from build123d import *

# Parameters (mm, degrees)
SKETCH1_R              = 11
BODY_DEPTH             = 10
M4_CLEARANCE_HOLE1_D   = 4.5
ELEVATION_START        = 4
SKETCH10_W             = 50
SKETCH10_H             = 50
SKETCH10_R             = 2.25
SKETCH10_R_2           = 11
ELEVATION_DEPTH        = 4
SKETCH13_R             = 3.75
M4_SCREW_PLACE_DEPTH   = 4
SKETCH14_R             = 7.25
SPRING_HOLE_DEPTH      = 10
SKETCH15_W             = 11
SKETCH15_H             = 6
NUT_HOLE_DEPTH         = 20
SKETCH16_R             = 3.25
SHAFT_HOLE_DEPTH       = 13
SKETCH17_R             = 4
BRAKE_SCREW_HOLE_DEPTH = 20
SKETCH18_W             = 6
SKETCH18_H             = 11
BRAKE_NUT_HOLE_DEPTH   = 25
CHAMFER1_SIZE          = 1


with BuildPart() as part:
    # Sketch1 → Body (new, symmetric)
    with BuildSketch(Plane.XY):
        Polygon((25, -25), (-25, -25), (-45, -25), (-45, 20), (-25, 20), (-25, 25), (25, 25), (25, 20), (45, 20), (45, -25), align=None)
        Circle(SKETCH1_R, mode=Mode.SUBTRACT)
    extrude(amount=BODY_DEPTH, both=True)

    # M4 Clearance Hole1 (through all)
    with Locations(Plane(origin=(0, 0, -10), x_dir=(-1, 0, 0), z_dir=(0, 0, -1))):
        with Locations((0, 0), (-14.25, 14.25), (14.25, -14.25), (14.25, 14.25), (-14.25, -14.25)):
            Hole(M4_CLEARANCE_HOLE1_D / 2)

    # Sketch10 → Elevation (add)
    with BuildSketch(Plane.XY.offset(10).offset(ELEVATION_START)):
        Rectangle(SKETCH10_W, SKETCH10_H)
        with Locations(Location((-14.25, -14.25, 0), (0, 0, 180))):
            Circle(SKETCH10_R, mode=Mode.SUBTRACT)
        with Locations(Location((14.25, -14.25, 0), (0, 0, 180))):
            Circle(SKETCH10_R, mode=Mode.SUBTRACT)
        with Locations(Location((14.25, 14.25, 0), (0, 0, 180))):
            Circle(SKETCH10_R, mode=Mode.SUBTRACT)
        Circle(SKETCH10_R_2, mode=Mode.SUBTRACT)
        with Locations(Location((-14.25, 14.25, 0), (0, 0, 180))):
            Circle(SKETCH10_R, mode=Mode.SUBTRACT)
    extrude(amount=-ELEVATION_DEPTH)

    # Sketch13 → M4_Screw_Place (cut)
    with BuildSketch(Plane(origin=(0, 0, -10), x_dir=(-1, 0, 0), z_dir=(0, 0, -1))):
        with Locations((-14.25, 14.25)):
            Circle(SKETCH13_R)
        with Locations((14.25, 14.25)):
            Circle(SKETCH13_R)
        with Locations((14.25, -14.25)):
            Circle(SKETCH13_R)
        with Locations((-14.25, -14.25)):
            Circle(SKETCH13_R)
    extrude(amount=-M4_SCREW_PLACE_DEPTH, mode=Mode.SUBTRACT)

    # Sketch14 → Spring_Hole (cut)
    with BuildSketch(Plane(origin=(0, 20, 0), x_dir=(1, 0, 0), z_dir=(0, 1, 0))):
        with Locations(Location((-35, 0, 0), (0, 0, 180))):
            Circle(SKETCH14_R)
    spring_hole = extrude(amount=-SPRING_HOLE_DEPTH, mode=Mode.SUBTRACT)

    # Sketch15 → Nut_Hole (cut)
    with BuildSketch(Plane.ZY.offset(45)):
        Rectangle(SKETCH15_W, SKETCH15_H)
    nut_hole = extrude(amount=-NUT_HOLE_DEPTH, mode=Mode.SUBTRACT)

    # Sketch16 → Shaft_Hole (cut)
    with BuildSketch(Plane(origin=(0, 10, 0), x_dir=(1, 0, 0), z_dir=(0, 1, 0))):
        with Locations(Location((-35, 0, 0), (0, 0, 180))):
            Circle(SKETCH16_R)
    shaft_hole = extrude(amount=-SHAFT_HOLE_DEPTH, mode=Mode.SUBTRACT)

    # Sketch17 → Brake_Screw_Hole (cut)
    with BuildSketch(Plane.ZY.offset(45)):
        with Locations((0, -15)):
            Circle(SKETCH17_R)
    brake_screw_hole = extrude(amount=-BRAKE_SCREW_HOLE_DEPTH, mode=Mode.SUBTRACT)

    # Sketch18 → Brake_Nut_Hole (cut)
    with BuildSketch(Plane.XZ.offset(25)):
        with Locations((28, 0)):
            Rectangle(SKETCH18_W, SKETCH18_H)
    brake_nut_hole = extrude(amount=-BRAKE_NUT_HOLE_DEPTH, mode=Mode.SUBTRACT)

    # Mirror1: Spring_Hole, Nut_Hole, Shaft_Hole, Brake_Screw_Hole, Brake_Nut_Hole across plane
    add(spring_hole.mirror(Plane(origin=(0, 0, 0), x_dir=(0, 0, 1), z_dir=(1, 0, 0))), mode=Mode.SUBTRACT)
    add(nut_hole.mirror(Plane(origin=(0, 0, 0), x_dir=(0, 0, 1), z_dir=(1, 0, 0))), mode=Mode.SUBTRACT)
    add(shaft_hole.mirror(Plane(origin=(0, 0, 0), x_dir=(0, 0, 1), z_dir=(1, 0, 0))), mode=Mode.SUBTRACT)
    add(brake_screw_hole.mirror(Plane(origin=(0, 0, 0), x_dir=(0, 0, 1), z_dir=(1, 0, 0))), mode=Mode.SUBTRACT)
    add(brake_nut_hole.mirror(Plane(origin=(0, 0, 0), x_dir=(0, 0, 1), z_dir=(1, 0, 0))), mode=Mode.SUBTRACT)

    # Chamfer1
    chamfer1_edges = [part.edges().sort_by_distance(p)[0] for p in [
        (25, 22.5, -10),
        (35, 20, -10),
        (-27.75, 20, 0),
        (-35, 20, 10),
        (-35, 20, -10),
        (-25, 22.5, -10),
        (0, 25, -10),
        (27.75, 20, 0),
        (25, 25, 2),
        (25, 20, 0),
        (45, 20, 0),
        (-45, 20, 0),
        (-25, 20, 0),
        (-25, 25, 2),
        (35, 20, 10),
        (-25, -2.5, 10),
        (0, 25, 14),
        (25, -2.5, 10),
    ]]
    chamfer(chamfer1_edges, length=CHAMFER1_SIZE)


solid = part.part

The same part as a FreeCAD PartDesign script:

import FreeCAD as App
import Part
import Sketcher
from FreeCAD import Vector


def edges_at(feature, points):
    """Names of the edges that pass closest to the given points."""
    edges = feature.Shape.Edges
    near = lambda p: min(range(len(edges)), key=lambda i: edges[i].distToShape(Part.Vertex(*p))[0])
    return sorted({f"Edge{near(p) + 1}" for p in points})


def add_polygon(sketch, points):
    """Adds a closed chain of lines whose ends are joined by coincident constraints."""
    first, n = sketch.GeometryCount, len(points)
    for a, b in zip(points, points[1:] + points[:1]):
        sketch.addGeometry(Part.LineSegment(App.Vector(*a, 0), App.Vector(*b, 0)), False)
    for i in range(n):
        sketch.addConstraint(Sketcher.Constraint("Coincident", first + i, 2, first + (i + 1) % n, 1))

doc = App.newDocument("Part")
body = doc.addObject("PartDesign::Body", "Body")

# Sketch on XY plane
sketch1 = body.newObject("Sketcher::SketchObject", "Sketch")
sketch1.AttachmentSupport = (doc.getObject("XY_Plane"), [""])
sketch1.MapMode = "FlatFace"
add_polygon(sketch1, [(-45, -25), (45, -25), (45, 20), (25, 20), (25, 25), (-25, 25), (-25, 20), (-45, 20)])  # lines 0-7
sketch1.addGeometry(Part.Circle(Vector(0, 0, 0), Vector(0, 0, 1), 11), False)  # 8
sketch1.addConstraint(Sketcher.Constraint("Horizontal", 0))
sketch1.addConstraint(Sketcher.Constraint("Vertical", 1))
sketch1.addConstraint(Sketcher.Constraint("Horizontal", 2))
sketch1.addConstraint(Sketcher.Constraint("Vertical", 3))
sketch1.addConstraint(Sketcher.Constraint("Horizontal", 4))
sketch1.addConstraint(Sketcher.Constraint("Vertical", 5))
sketch1.addConstraint(Sketcher.Constraint("Horizontal", 6))
sketch1.addConstraint(Sketcher.Constraint("Vertical", 7))
sketch1.addConstraint(Sketcher.Constraint("Coincident", 8, 3, -1, 1))
sketch1.addConstraint(Sketcher.Constraint("Symmetric", 2, 2, 5, 2, -2))
sketch1.addConstraint(Sketcher.Constraint("Equal", 2, 6))
sketch1.addConstraint(Sketcher.Constraint("Diameter", 8, 22.0))
sketch1.addConstraint(Sketcher.Constraint("DistanceX", 0, 1, 0, 2, 90.0))
sketch1.addConstraint(Sketcher.Constraint("DistanceX", 2, 2, 2, 1, 20.0))
sketch1.addConstraint(Sketcher.Constraint("DistanceY", 1, 1, 1, 2, 45.0))
sketch1.addConstraint(Sketcher.Constraint("DistanceY", 3, 1, 3, 2, 5.0))
sketch1.addConstraint(Sketcher.Constraint("DistanceY", 0, 2, -1, 1, 25.0))
pad1 = body.newObject("PartDesign::Pad", "Pad")
pad1.Profile = sketch1
pad1.Length = 20
pad1.Midplane = True

# Sketch on XY plane
sketch2 = body.newObject("Sketcher::SketchObject", "Sketch001")
sketch2.AttachmentSupport = (doc.getObject("XY_Plane"), [""])
sketch2.MapMode = "FlatFace"
sketch2.AttachmentOffset = App.Placement(Vector(0, 0, -10), App.Rotation())
sketch2.addGeometry(Part.Circle(Vector(0, 0, 0), Vector(0, 0, 1), 2.25), False)
sketch2.addGeometry(Part.Circle(Vector(14.25, 14.25, 0), Vector(0, 0, 1), 2.25), False)
sketch2.addGeometry(Part.Circle(Vector(-14.25, -14.25, 0), Vector(0, 0, 1), 2.25), False)
sketch2.addGeometry(Part.Circle(Vector(-14.25, 14.25, 0), Vector(0, 0, 1), 2.25), False)
sketch2.addGeometry(Part.Circle(Vector(14.25, -14.25, 0), Vector(0, 0, 1), 2.25), False)
sketch2.addConstraint(Sketcher.Constraint("Coincident", 0, 3, -1, 1))
sketch2.addConstraint(Sketcher.Constraint("Equal", 0, 1))
sketch2.addConstraint(Sketcher.Constraint("Equal", 1, 2))
sketch2.addConstraint(Sketcher.Constraint("Equal", 2, 3))
sketch2.addConstraint(Sketcher.Constraint("Equal", 3, 4))
sketch2.addConstraint(Sketcher.Constraint("Symmetric", 1, 3, 2, 3, -1, 1))
sketch2.addConstraint(Sketcher.Constraint("Symmetric", 3, 3, 4, 3, -1, 1))
sketch2.addConstraint(Sketcher.Constraint("Symmetric", 1, 3, 3, 3, -2))
sketch2.addConstraint(Sketcher.Constraint("Diameter", 0, 4.5))
sketch2.addConstraint(Sketcher.Constraint("DistanceX", 2, 3, 1, 3, 28.5))
sketch2.addConstraint(Sketcher.Constraint("DistanceY", 2, 3, 1, 3, 28.5))
doc.recompute()
hole = body.newObject("PartDesign::Hole", "Hole")
hole.Profile = sketch2
hole.ThreadType = "None"
hole.Diameter = 4.5
hole.DepthType = "ThroughAll"
hole.Reversed = True

# Sketch on XY plane
sketch3 = body.newObject("Sketcher::SketchObject", "Sketch002")
sketch3.AttachmentSupport = (doc.getObject("XY_Plane"), [""])
sketch3.MapMode = "FlatFace"
sketch3.AttachmentOffset = App.Placement(Vector(0, 0, 14), App.Rotation())
add_polygon(sketch3, [(-25, 25), (-25, -25), (25, -25), (25, 25)])  # lines 0-3
sketch3.addGeometry(Part.Circle(Vector(-14.25, -14.25, 0), Vector(0, 0, 1), 2.25), False)  # 4
sketch3.addGeometry(Part.Circle(Vector(14.25, -14.25, 0), Vector(0, 0, 1), 2.25), False)  # 5
sketch3.addGeometry(Part.Circle(Vector(-14.25, 14.25, 0), Vector(0, 0, 1), 2.25), False)  # 6
sketch3.addGeometry(Part.Circle(Vector(0, 0, 0), Vector(0, 0, 1), 11), False)  # 7
sketch3.addGeometry(Part.Circle(Vector(14.25, 14.25, 0), Vector(0, 0, 1), 2.25), False)  # 8
sketch3.addConstraint(Sketcher.Constraint("Vertical", 0))
sketch3.addConstraint(Sketcher.Constraint("Horizontal", 1))
sketch3.addConstraint(Sketcher.Constraint("Vertical", 2))
sketch3.addConstraint(Sketcher.Constraint("Horizontal", 3))
sketch3.addConstraint(Sketcher.Constraint("Coincident", 7, 3, -1, 1))
sketch3.addConstraint(Sketcher.Constraint("Equal", 4, 5))
sketch3.addConstraint(Sketcher.Constraint("Equal", 5, 6))
sketch3.addConstraint(Sketcher.Constraint("Equal", 6, 8))
sketch3.addConstraint(Sketcher.Constraint("Symmetric", 5, 3, 6, 3, -1, 1))
sketch3.addConstraint(Sketcher.Constraint("Symmetric", 4, 3, 8, 3, -1, 1))
sketch3.addConstraint(Sketcher.Constraint("Symmetric", 0, 2, 2, 2, -1, 1))
sketch3.addConstraint(Sketcher.Constraint("Symmetric", 4, 3, 5, 3, -2))
sketch3.addConstraint(Sketcher.Constraint("Equal", 3, 0))
sketch3.addConstraint(Sketcher.Constraint("Diameter", 7, 22.0))
sketch3.addConstraint(Sketcher.Constraint("Diameter", 4, 4.5))
sketch3.addConstraint(Sketcher.Constraint("DistanceX", 1, 1, 1, 2, 50.0))
sketch3.addConstraint(Sketcher.Constraint("DistanceX", 4, 3, 5, 3, 28.5))
sketch3.addConstraint(Sketcher.Constraint("DistanceY", 4, 3, 6, 3, 28.5))
pad2 = body.newObject("PartDesign::Pad", "Pad001")
pad2.Profile = sketch3
pad2.Length = 4
pad2.Reversed = True

# Sketch on XY plane
sketch4 = body.newObject("Sketcher::SketchObject", "Sketch003")
sketch4.AttachmentSupport = (doc.getObject("XY_Plane"), [""])
sketch4.MapMode = "FlatFace"
sketch4.AttachmentOffset = App.Placement(Vector(0, 0, -10), App.Rotation())
sketch4.addGeometry(Part.Circle(Vector(14.25, 14.25, 0), Vector(0, 0, 1), 3.75), False)
sketch4.addGeometry(Part.Circle(Vector(-14.25, 14.25, 0), Vector(0, 0, 1), 3.75), False)
sketch4.addGeometry(Part.Circle(Vector(-14.25, -14.25, 0), Vector(0, 0, 1), 3.75), False)
sketch4.addGeometry(Part.Circle(Vector(14.25, -14.25, 0), Vector(0, 0, 1), 3.75), False)
sketch4.addConstraint(Sketcher.Constraint("Equal", 0, 1))
sketch4.addConstraint(Sketcher.Constraint("Equal", 1, 2))
sketch4.addConstraint(Sketcher.Constraint("Equal", 2, 3))
sketch4.addConstraint(Sketcher.Constraint("Symmetric", 0, 3, 2, 3, -1, 1))
sketch4.addConstraint(Sketcher.Constraint("Symmetric", 1, 3, 3, 3, -1, 1))
sketch4.addConstraint(Sketcher.Constraint("Symmetric", 0, 3, 1, 3, -2))
sketch4.addConstraint(Sketcher.Constraint("Diameter", 0, 7.5))
sketch4.addConstraint(Sketcher.Constraint("DistanceX", 1, 3, 0, 3, 28.5))
sketch4.addConstraint(Sketcher.Constraint("DistanceY", 2, 3, 1, 3, 28.5))
pocket1 = body.newObject("PartDesign::Pocket", "Pocket")
pocket1.Profile = sketch4
pocket1.Length = 4
pocket1.Reversed = True

# Sketch on XZ plane
sketch5 = body.newObject("Sketcher::SketchObject", "Sketch004")
sketch5.AttachmentSupport = (doc.getObject("XZ_Plane"), [""])
sketch5.MapMode = "FlatFace"
sketch5.AttachmentOffset = App.Placement(Vector(0, 0, -20), App.Rotation())
sketch5.addGeometry(Part.Circle(Vector(-35, 0, 0), Vector(0, 0, 1), 7.25), False)
sketch5.addConstraint(Sketcher.Constraint("PointOnObject", 0, 3, -1))
sketch5.addConstraint(Sketcher.Constraint("Diameter", 0, 14.5))
sketch5.addConstraint(Sketcher.Constraint("DistanceX", 0, 3, -1, 1, 35.0))
pocket2 = body.newObject("PartDesign::Pocket", "Pocket001")
pocket2.Profile = sketch5
pocket2.Length = 10
pocket2.Reversed = True

# Sketch on YZ plane
sketch6 = body.newObject("Sketcher::SketchObject", "Sketch005")
sketch6.AttachmentSupport = (doc.getObject("YZ_Plane"), [""])
sketch6.MapMode = "FlatFace"
sketch6.AttachmentOffset = App.Placement(Vector(0, 0, -45), App.Rotation())
add_polygon(sketch6, [(3, -5.5), (-3, -5.5), (-3, 5.5), (3, 5.5)])  # lines 0-3
sketch6.addConstraint(Sketcher.Constraint("Horizontal", 0))
sketch6.addConstraint(Sketcher.Constraint("Vertical", 1))
sketch6.addConstraint(Sketcher.Constraint("Horizontal", 2))
sketch6.addConstraint(Sketcher.Constraint("Vertical", 3))
sketch6.addConstraint(Sketcher.Constraint("Symmetric", 0, 2, 2, 2, -1, 1))
sketch6.addConstraint(Sketcher.Constraint("DistanceX", 0, 2, 0, 1, 6.0))
sketch6.addConstraint(Sketcher.Constraint("DistanceY", 1, 1, 1, 2, 11.0))
pocket3 = body.newObject("PartDesign::Pocket", "Pocket002")
pocket3.Profile = sketch6
pocket3.Length = 20
pocket3.Reversed = True

# Sketch on XZ plane
sketch7 = body.newObject("Sketcher::SketchObject", "Sketch006")
sketch7.AttachmentSupport = (doc.getObject("XZ_Plane"), [""])
sketch7.MapMode = "FlatFace"
sketch7.AttachmentOffset = App.Placement(Vector(0, 0, -10), App.Rotation())
sketch7.addGeometry(Part.Circle(Vector(-35, 0, 0), Vector(0, 0, 1), 3.25), False)
sketch7.addConstraint(Sketcher.Constraint("PointOnObject", 0, 3, -1))
sketch7.addConstraint(Sketcher.Constraint("Diameter", 0, 6.5))
sketch7.addConstraint(Sketcher.Constraint("DistanceX", 0, 3, -1, 1, 35.0))
pocket4 = body.newObject("PartDesign::Pocket", "Pocket003")
pocket4.Profile = sketch7
pocket4.Length = 13
pocket4.Reversed = True

# Sketch on YZ plane
sketch8 = body.newObject("Sketcher::SketchObject", "Sketch007")
sketch8.AttachmentSupport = (doc.getObject("YZ_Plane"), [""])
sketch8.MapMode = "FlatFace"
sketch8.AttachmentOffset = App.Placement(Vector(0, 0, -45), App.Rotation())
sketch8.addGeometry(Part.Circle(Vector(-15, 0, 0), Vector(0, 0, 1), 4), False)
sketch8.addConstraint(Sketcher.Constraint("PointOnObject", 0, 3, -1))
sketch8.addConstraint(Sketcher.Constraint("Diameter", 0, 8.0))
sketch8.addConstraint(Sketcher.Constraint("DistanceX", 0, 3, -1, 1, 15.0))
pocket5 = body.newObject("PartDesign::Pocket", "Pocket004")
pocket5.Profile = sketch8
pocket5.Length = 20
pocket5.Reversed = True

# Sketch on XZ plane
sketch9 = body.newObject("Sketcher::SketchObject", "Sketch008")
sketch9.AttachmentSupport = (doc.getObject("XZ_Plane"), [""])
sketch9.MapMode = "FlatFace"
sketch9.AttachmentOffset = App.Placement(Vector(0, 0, 25), App.Rotation())
add_polygon(sketch9, [(25, 5.5), (25, -5.5), (31, -5.5), (31, 5.5)])  # lines 0-3
sketch9.addConstraint(Sketcher.Constraint("Vertical", 0))
sketch9.addConstraint(Sketcher.Constraint("Horizontal", 1))
sketch9.addConstraint(Sketcher.Constraint("Vertical", 2))
sketch9.addConstraint(Sketcher.Constraint("Horizontal", 3))
sketch9.addConstraint(Sketcher.Constraint("DistanceX", 1, 1, 1, 2, 6.0))
sketch9.addConstraint(Sketcher.Constraint("DistanceY", 0, 2, 0, 1, 11.0))
sketch9.addConstraint(Sketcher.Constraint("DistanceX", -1, 1, 0, 2, 25.0))
sketch9.addConstraint(Sketcher.Constraint("DistanceY", 0, 2, -1, 1, 5.5))
pocket6 = body.newObject("PartDesign::Pocket", "Pocket005")
pocket6.Profile = sketch9
pocket6.Length = 25
doc.recompute()

mirrored = body.newObject("PartDesign::Mirrored", "Mirrored")
mirrored.Originals = [pocket2, pocket3, pocket4, pocket5, pocket6]
mirrored.MirrorPlane = (doc.getObject("YZ_Plane"), [""])
body.Tip = mirrored
doc.recompute()

chamfer = body.newObject("PartDesign::Chamfer", "Chamfer")
chamfer.Base = (mirrored, edges_at(mirrored, [
    (25, 22.5, -10),
    (35, 20, -10),
    (-27.75, 20, 0),
    (-35, 20, 10),
    (-35, 20, -10),
    (-25, 22.5, -10),
    (0, 25, -10),
    (27.75, 20, 0),
    (25, 25, 2),
    (25, 20, 0),
    (45, 20, 0),
    (-45, 20, 0),
    (-25, 20, 0),
    (-25, 25, 2),
    (35, 20, 10),
    (-25, -2.5, 10),
    (0, 25, 14),
    (25, -2.5, 10),
]))
chamfer.Size = 1

doc.recompute()
